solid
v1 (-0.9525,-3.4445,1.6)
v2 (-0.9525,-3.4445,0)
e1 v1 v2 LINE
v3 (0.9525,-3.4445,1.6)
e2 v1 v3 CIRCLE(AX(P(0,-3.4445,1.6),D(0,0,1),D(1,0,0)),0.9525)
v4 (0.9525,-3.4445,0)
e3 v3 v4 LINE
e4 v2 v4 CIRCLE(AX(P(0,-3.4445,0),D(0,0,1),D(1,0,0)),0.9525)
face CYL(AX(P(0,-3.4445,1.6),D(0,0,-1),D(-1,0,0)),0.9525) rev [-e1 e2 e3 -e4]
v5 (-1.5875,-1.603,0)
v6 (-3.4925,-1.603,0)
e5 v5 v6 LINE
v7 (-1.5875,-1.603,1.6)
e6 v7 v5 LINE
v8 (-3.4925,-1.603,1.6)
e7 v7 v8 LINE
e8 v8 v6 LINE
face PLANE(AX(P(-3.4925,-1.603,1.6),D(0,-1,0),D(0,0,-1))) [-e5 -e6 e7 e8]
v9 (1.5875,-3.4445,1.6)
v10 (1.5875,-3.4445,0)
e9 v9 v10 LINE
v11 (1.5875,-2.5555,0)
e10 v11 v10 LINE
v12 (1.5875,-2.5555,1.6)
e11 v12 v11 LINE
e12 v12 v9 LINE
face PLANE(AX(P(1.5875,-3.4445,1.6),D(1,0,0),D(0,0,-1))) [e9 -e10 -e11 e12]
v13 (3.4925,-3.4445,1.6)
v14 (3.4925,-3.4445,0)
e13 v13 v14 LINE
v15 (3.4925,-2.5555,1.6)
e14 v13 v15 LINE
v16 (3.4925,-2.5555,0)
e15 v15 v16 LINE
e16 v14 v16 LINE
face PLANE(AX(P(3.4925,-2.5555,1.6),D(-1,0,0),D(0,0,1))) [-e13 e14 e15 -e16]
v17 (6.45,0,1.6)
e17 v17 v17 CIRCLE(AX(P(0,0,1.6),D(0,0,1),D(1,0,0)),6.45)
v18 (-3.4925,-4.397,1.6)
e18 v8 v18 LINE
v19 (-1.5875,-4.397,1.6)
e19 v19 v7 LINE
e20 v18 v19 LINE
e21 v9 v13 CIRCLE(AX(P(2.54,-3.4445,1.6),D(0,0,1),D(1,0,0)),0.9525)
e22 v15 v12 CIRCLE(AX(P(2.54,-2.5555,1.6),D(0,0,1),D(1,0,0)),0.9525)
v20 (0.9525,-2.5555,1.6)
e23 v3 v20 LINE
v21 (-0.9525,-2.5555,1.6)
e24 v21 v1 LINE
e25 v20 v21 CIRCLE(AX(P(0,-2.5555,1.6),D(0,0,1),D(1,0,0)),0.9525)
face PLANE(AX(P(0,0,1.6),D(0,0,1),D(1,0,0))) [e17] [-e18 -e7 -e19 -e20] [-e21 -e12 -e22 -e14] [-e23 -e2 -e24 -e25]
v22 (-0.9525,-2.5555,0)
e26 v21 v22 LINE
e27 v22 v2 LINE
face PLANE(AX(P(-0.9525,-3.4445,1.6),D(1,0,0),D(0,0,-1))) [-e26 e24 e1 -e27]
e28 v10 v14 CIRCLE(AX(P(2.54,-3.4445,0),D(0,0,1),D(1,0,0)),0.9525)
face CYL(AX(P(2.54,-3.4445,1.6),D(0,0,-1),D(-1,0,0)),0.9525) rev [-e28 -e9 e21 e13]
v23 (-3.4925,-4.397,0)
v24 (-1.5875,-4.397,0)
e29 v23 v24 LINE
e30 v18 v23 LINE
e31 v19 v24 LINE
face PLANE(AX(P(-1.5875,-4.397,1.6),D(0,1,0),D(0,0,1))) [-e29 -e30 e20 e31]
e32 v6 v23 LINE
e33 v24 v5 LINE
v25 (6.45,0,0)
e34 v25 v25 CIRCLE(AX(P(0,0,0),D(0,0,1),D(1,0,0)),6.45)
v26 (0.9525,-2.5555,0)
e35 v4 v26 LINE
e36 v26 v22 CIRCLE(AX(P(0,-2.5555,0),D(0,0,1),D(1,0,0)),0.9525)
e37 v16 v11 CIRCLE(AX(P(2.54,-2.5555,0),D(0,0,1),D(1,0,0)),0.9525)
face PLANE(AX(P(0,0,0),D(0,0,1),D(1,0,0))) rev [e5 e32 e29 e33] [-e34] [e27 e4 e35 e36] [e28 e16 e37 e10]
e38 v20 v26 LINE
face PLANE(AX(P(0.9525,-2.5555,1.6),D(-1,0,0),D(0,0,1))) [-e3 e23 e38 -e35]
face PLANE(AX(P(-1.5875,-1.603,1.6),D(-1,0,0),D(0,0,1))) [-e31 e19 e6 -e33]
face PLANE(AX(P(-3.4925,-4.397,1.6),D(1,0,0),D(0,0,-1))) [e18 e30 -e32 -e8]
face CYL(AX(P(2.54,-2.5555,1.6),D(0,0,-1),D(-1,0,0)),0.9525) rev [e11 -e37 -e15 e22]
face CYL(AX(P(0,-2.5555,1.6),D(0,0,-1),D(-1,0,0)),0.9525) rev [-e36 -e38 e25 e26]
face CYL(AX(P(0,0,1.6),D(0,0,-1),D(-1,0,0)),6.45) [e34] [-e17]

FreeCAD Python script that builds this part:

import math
import FreeCAD as App
import Part
import Sketcher

V = App.Vector
Q = App.Units.Quantity


def add_polygon(sketch, points):
    """Adds a closed chain of lines whose ends are joined by coincident constraints."""
    first, n = sketch.GeometryCount, len(points)
    for a, b in zip(points, points[1:] + points[:1]):
        sketch.addGeometry(Part.LineSegment(App.Vector(*a, 0), App.Vector(*b, 0)), False)
    for i in range(n):
        sketch.addConstraint(Sketcher.Constraint("Coincident", first + i, 2, first + (i + 1) % n, 1))

doc = App.newDocument("Part")
body = doc.addObject("PartDesign::Body", "Body")

# Sketch on XY plane
sketch1 = body.newObject("Sketcher::SketchObject", "Sketch")
sketch1.AttachmentSupport = (doc.getObject("XY_Plane"), [""])
sketch1.MapMode = "FlatFace"
sketch1.addGeometry(Part.Circle(V(0, 0, 0), V(0, 0, 1), 6.5), False)  # 0
add_polygon(sketch1, [(-1.6, -4.4), (-3.5, -4.4), (-3.5, -1.6), (-1.6, -1.6)])  # lines 1-4
sketch1.addGeometry(Part.ArcOfCircle(Part.Circle(V(0, -2.6, 0), V(0, 0, 1), 1), math.radians(0), math.radians(180)), False)  # 5
sketch1.addGeometry(Part.LineSegment(V(1, -2.6, 0), V(1, -3.4, 0)), False)  # 6
sketch1.addGeometry(Part.ArcOfCircle(Part.Circle(V(0, -3.4, 0), V(0, 0, 1), 1), math.radians(180), math.radians(360)), False)  # 7
sketch1.addGeometry(Part.LineSegment(V(-1, -3.4, 0), V(-1, -2.6, 0)), False)  # 8
sketch1.addGeometry(Part.ArcOfCircle(Part.Circle(V(2.5, -2.6, 0), V(0, 0, 1), 1), math.radians(0), math.radians(180)), False)  # 9
sketch1.addGeometry(Part.LineSegment(V(3.5, -2.6, 0), V(3.5, -3.4, 0)), False)  # 10
sketch1.addGeometry(Part.ArcOfCircle(Part.Circle(V(2.5, -3.4, 0), V(0, 0, 1), 1), math.radians(180), math.radians(360)), False)  # 11
sketch1.addGeometry(Part.LineSegment(V(1.6, -3.4, 0), V(1.6, -2.6, 0)), False)  # 12
sketch1.addConstraint([
    Sketcher.Constraint("Tangent", 5, 1, 6, 1),
    Sketcher.Constraint("Tangent", 6, 2, 7, 2),
    Sketcher.Constraint("Tangent", 7, 1, 8, 1),
    Sketcher.Constraint("Tangent", 8, 2, 5, 2),
    Sketcher.Constraint("Tangent", 9, 1, 10, 1),
    Sketcher.Constraint("Tangent", 10, 2, 11, 2),
    Sketcher.Constraint("Tangent", 11, 1, 12, 1),
    Sketcher.Constraint("Tangent", 12, 2, 9, 2),
    Sketcher.Constraint("Horizontal", 1),
    Sketcher.Constraint("Vertical", 2),
    Sketcher.Constraint("Horizontal", 3),
    Sketcher.Constraint("Vertical", 4),
    Sketcher.Constraint("Vertical", 6),
    Sketcher.Constraint("Vertical", 8),
    Sketcher.Constraint("Vertical", 10),
    Sketcher.Constraint("Vertical", 12),
    Sketcher.Constraint("Coincident", 0, 3, -1, 1),
    Sketcher.Constraint("Equal", 7, 9),
    Sketcher.Constraint("PointOnObject", 5, 3, -2),
    Sketcher.Constraint("Horizontal", 5, 3, 9, 3),
    Sketcher.Constraint("Horizontal", 7, 3, 11, 3),
    Sketcher.Constraint("DistanceY", 2, 1, 2, 2, Q("0.11 in")),
    Sketcher.Constraint("DistanceX", -1, 1, 9, 3, Q("0.1 in")),
    Sketcher.Constraint("Radius", 5, Q("0.0375 in")),
    Sketcher.Constraint("DistanceX", 3, 2, 5, 1, Q("0.1 in")),
    Sketcher.Constraint("Diameter", 0, 12.9),
    Sketcher.Constraint("DistanceX", 1, 2, 1, 1, Q("0.075 in")),
    Sketcher.Constraint("DistanceY", 6, 2, 6, 1, Q("0.035 in")),
    Sketcher.Constraint("DistanceY", 1, 2, 7, 3, Q("0.0375 in")),
    Sketcher.Constraint("DistanceY", 5, 3, -1, 1, 2.5555),
])
pad1 = body.newObject("PartDesign::Pad", "Pad")
pad1.Profile = sketch1
pad1.Length = 1.6

doc.recompute()
